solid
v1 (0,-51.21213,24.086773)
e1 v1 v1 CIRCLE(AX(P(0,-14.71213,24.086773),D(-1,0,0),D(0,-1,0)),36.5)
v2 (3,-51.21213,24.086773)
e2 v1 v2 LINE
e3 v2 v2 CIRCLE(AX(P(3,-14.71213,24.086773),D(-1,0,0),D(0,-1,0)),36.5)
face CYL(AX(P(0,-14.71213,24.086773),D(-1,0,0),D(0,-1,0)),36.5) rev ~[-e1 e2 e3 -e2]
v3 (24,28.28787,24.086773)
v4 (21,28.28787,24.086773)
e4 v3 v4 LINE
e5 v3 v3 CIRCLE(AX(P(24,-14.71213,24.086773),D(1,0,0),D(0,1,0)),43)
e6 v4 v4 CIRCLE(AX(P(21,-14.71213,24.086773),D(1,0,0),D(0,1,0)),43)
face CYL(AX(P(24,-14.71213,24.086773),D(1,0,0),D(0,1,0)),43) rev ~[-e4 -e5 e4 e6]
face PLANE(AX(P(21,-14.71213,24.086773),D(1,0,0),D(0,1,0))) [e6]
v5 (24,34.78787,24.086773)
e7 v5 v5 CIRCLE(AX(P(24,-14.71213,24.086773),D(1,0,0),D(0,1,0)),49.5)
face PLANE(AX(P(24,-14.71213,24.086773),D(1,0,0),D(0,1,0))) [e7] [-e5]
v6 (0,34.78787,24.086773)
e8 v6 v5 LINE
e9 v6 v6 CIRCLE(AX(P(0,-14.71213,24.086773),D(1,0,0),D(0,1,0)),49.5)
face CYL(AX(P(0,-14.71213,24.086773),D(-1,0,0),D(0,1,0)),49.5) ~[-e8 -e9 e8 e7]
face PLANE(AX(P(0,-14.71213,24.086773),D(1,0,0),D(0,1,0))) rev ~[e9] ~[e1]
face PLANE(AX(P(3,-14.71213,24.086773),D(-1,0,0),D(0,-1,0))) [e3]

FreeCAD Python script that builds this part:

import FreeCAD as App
import Part
import Sketcher
from FreeCAD import Vector

doc = App.newDocument("Part")
body = doc.addObject("PartDesign::Body", "Body")

# Sketch on YZ plane
sketch1 = doc.addObject("Sketcher::SketchObject", "Sketch")
body.addObject(sketch1)
sketch1.AttachmentSupport = (doc.YZ_Plane, [""])
sketch1.MapMode = "FlatFace"
sketch1.addGeometry(Part.Circle(Vector(-14.71213, 24.086773, 0), Vector(0, 0, 1), 49.5), False)
sketch1.addConstraint([
    Sketcher.Constraint("Diameter", 0, 99.0),
    Sketcher.Constraint("DistanceX", 0, 3, -1, 1, 14.71213),
    Sketcher.Constraint("DistanceY", -1, 1, 0, 3, 24.086773),
])
pad1 = doc.addObject("PartDesign::Pad", "Pad")
body.addObject(pad1)
pad1.Profile = sketch1
pad1.Length = 24

# Sketch on YZ plane
sketch2 = doc.addObject("Sketcher::SketchObject", "Sketch001")
body.addObject(sketch2)
sketch2.AttachmentSupport = (doc.YZ_Plane, [""])
sketch2.MapMode = "FlatFace"
sketch2.AttachmentOffset = App.Placement(Vector(0, 0, 24), App.Rotation())
sketch2.addGeometry(Part.Circle(Vector(-14.71213, 24.086773, 0), Vector(0, 0, 1), 43), False)
sketch2.addConstraint([
    Sketcher.Constraint("Diameter", 0, 86.0),
    Sketcher.Constraint("DistanceX", 0, 3, -1, 1, 14.71213),
    Sketcher.Constraint("DistanceY", -1, 1, 0, 3, 24.086773),
])
pocket1 = doc.addObject("PartDesign::Pocket", "Pocket")
body.addObject(pocket1)
pocket1.Profile = sketch2
pocket1.Length = 3

# Sketch on YZ plane
sketch3 = doc.addObject("Sketcher::SketchObject", "Sketch002")
body.addObject(sketch3)
sketch3.AttachmentSupport = (doc.YZ_Plane, [""])
sketch3.MapMode = "FlatFace"
sketch3.addGeometry(Part.Circle(Vector(-14.71213, 24.086773, 0), Vector(0, 0, 1), 36.5), False)
sketch3.addConstraint([
    Sketcher.Constraint("Diameter", 0, 73.0),
    Sketcher.Constraint("DistanceX", 0, 3, -1, 1, 14.71213),
    Sketcher.Constraint("DistanceY", -1, 1, 0, 3, 24.086773),
])
pocket2 = doc.addObject("PartDesign::Pocket", "Pocket001")
body.addObject(pocket2)
pocket2.Profile = sketch3
pocket2.Length = 3
pocket2.Reversed = True

doc.recompute()
